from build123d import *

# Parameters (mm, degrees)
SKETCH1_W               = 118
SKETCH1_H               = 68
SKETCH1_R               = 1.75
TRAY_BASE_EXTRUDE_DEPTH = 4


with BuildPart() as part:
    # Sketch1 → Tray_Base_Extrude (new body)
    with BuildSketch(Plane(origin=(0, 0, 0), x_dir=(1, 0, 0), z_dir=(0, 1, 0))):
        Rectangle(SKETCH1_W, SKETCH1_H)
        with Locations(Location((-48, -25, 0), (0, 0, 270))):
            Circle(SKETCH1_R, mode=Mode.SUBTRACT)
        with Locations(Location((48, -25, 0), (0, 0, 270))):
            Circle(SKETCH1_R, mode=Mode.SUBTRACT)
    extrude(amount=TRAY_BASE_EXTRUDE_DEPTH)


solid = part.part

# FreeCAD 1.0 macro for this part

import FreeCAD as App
import Part
import Sketcher

doc = App.newDocument("Part")
body = doc.addObject("PartDesign::Body", "Body")

# Sketch on XZ plane
sketch1 = body.newObject("Sketcher::SketchObject", "Sketch")
sketch1.AttachmentSupport = (doc.getObject("XZ_Plane"), [""])
sketch1.MapMode = "FlatFace"
sketch1.addGeometry(Part.LineSegment(App.Vector(-59, -34, 0), App.Vector(-59, 34, 0)), False)
sketch1.addGeometry(Part.LineSegment(App.Vector(-59, 34, 0), App.Vector(59, 34, 0)), False)
sketch1.addGeometry(Part.LineSegment(App.Vector(59, 34, 0), App.Vector(59, -34, 0)), False)
sketch1.addGeometry(Part.LineSegment(App.Vector(59, -34, 0), App.Vector(-59, -34, 0)), False)
sketch1.addGeometry(Part.Circle(App.Vector(-48, 25, 0), App.Vector(0, 0, 1), 1.75), False)
sketch1.addGeometry(Part.Circle(App.Vector(48, 25, 0), App.Vector(0, 0, 1), 1.75), False)
sketch1.addConstraint(Sketcher.Constraint("Coincident", 0, 2, 1, 1))
sketch1.addConstraint(Sketcher.Constraint("Coincident", 1, 2, 2, 1))
sketch1.addConstraint(Sketcher.Constraint("Coincident", 2, 2, 3, 1))
sketch1.addConstraint(Sketcher.Constraint("Coincident", 3, 2, 0, 1))
sketch1.addConstraint(Sketcher.Constraint("Vertical", 0))
sketch1.addConstraint(Sketcher.Constraint("Horizontal", 1))
sketch1.addConstraint(Sketcher.Constraint("Vertical", 2))
sketch1.addConstraint(Sketcher.Constraint("Horizontal", 3))
sketch1.addConstraint(Sketcher.Constraint("Equal", 4, 5))
sketch1.addConstraint(Sketcher.Constraint("Symmetric", 0, 2, 2, 2, -1, 1))
sketch1.addConstraint(Sketcher.Constraint("Symmetric", 4, 3, 5, 3, -2))
sketch1.addConstraint(Sketcher.Constraint("Diameter", 4, 3.5))
sketch1.addConstraint(Sketcher.Constraint("DistanceX", 1, 1, 1, 2, 118.0))
sketch1.addConstraint(Sketcher.Constraint("DistanceY", 0, 1, 0, 2, 68.0))
sketch1.addConstraint(Sketcher.Constraint("DistanceX", 4, 3, -1, 1, 48.0))
sketch1.addConstraint(Sketcher.Constraint("DistanceY", -1, 1, 4, 3, 25.0))
pad1 = body.newObject("PartDesign::Pad", "Pad")
pad1.Profile = sketch1
pad1.Length = 4
pad1.Reversed = True

doc.recompute()
